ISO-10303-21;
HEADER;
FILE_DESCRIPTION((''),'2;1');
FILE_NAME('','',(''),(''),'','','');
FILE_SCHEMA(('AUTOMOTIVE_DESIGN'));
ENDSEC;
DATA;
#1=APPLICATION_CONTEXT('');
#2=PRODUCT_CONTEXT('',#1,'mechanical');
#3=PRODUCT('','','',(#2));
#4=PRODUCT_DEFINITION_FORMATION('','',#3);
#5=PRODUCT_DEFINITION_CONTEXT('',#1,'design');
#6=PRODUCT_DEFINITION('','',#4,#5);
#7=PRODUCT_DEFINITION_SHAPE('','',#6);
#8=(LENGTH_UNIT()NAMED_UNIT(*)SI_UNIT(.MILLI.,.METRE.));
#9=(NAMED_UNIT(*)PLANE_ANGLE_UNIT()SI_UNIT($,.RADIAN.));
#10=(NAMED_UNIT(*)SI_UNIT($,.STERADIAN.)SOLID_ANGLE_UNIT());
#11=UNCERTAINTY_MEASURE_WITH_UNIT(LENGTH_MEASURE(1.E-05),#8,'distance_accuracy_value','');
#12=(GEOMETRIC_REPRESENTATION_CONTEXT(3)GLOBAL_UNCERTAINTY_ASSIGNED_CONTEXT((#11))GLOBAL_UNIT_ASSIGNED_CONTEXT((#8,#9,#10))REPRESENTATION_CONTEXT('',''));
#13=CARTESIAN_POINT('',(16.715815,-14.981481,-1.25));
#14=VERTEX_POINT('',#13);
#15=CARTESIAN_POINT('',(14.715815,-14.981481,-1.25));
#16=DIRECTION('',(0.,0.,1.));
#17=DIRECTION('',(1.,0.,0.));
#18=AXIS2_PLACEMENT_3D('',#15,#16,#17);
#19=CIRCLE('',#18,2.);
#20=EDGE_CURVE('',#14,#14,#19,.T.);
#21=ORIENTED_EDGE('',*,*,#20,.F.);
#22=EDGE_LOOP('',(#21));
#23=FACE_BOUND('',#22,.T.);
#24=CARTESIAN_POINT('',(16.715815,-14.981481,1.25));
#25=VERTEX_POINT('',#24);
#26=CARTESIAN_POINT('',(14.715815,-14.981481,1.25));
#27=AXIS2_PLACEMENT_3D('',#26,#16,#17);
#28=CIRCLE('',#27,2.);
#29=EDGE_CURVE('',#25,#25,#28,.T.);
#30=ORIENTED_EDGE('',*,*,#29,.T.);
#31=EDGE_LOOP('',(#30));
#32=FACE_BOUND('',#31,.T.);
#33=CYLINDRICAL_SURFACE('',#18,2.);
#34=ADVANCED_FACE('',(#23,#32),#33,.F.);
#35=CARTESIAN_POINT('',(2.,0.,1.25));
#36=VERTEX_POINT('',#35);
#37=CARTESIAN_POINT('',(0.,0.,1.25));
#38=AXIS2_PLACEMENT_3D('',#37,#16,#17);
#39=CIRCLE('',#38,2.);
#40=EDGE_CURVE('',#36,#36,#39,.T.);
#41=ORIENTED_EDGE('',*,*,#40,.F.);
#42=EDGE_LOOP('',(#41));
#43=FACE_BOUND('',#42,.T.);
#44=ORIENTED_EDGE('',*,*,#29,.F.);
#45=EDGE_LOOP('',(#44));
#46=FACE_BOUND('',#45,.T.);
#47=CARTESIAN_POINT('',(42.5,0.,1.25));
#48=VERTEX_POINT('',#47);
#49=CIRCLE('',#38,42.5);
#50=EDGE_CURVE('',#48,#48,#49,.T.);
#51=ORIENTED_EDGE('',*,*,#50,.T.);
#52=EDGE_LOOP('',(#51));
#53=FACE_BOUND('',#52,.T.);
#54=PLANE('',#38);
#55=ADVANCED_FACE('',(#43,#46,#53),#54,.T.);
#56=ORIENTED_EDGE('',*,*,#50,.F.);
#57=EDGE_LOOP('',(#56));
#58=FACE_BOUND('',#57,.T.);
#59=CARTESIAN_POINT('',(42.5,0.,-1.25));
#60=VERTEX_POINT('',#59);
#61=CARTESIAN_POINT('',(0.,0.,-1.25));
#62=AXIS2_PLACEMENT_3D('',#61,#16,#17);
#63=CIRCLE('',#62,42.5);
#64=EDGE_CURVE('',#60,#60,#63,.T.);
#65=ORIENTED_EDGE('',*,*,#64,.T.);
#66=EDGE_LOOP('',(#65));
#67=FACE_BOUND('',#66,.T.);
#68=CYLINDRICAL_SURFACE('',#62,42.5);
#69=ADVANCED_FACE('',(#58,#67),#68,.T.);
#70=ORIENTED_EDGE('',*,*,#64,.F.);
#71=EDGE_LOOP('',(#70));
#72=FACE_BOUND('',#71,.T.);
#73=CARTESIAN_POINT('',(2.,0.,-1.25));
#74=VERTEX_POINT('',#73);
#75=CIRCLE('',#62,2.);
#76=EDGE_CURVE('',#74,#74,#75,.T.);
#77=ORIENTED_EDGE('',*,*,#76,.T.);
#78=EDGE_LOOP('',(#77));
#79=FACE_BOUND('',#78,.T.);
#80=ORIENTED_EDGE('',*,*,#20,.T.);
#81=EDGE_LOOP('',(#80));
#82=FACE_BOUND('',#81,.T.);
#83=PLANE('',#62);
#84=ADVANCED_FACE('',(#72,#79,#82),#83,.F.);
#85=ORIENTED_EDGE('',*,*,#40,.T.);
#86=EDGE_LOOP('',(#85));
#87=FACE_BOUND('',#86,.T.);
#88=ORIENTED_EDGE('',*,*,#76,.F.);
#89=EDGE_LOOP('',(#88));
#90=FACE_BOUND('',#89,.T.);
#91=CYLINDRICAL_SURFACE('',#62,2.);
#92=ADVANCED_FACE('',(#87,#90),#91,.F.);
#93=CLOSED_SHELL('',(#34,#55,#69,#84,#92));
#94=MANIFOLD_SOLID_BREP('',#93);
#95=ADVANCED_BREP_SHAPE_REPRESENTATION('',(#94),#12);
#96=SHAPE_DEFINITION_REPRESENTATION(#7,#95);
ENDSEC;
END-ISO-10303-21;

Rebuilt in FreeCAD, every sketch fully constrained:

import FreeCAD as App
import Part
import Sketcher
from FreeCAD import Vector

doc = App.newDocument("Part")
params = doc.addObject("Spreadsheet::Sheet", "Params")
for row, (alias, value) in enumerate([
    ("sketch1_diameter", "85 mm"),
    ("sketch1_diameter2", "4 mm"),
    ("pad1_length", "1.25 mm"),
    ("pad1_length2", "1.25 mm"),
], start=1):
    params.set(f"A{row}", alias)
    params.set(f"B{row}", "=" + value)
    params.setAlias(f"B{row}", alias)

body = doc.addObject("PartDesign::Body", "Body")

# Sketch on XY plane
sketch1 = body.newObject("Sketcher::SketchObject", "Sketch")
sketch1.AttachmentSupport = (doc.getObject("XY_Plane"), [""])
sketch1.MapMode = "FlatFace"
sketch1.addGeometry([
    Part.Circle(Vector(0, 0, 0), Vector(0, 0, 1), 42.5),
    Part.Circle(Vector(14.715815, -14.981481, 0), Vector(0, 0, 1), 2),
    Part.Circle(Vector(0, 0, 0), Vector(0, 0, 1), 2),
], False)
sketch1.addConstraint([
    Sketcher.Constraint("Coincident", 0, 3, -1, 1),
    Sketcher.Constraint("Coincident", 2, 3, -1, 1),
    Sketcher.Constraint("Equal", 1, 2),
    Sketcher.Constraint("Diameter", 0, 85.0),
    Sketcher.Constraint("Diameter", 1, 4.0),
    Sketcher.Constraint("DistanceY", 1, 3, -1, 1, 14.981481),
    Sketcher.Constraint("DistanceX", -1, 1, 1, 3, 14.715815),
])
sketch1.setExpression("Constraints[3]", "Params.sketch1_diameter")
sketch1.setExpression("Constraints[4]", "Params.sketch1_diameter2")
pad1 = body.newObject("PartDesign::Pad", "Pad")
pad1.Profile = sketch1
pad1.Type = "TwoLengths"
pad1.setExpression("Length", "Params.pad1_length")
pad1.setExpression("Length2", "Params.pad1_length2")

doc.recompute()
